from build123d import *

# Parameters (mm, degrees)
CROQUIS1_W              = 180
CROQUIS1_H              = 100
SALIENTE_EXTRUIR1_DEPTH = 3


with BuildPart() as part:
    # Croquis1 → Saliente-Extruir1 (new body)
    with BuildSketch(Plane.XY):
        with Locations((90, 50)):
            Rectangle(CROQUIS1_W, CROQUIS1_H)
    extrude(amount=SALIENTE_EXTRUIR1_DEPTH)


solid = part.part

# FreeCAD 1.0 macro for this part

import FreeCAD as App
import Part
import Sketcher

V = App.Vector
Q = App.Units.Quantity

doc = App.newDocument("Part")
body = doc.addObject("PartDesign::Body", "Body")

sketch1 = doc.addObject("Sketcher::SketchObject", "Sketch")
body.addObject(sketch1)
sketch1.AttachmentSupport = (doc.XY_Plane, [""])
sketch1.MapMode = "FlatFace"
sketch1.addGeometry([
    Part.LineSegment(V(0, 100, 0), V(0, 0, 0)),
    Part.LineSegment(V(0, 0, 0), V(180, 0, 0)),
    Part.LineSegment(V(180, 0, 0), V(180, 100, 0)),
    Part.LineSegment(V(180, 100, 0), V(0, 100, 0)),
], False)
sketch1.addConstraint([
    Sketcher.Constraint("Coincident", 0, 2, 1, 1),
    Sketcher.Constraint("Coincident", 1, 2, 2, 1),
    Sketcher.Constraint("Coincident", 2, 2, 3, 1),
    Sketcher.Constraint("Coincident", 3, 2, 0, 1),
    Sketcher.Constraint("Vertical", 0),
    Sketcher.Constraint("Horizontal", 1),
    Sketcher.Constraint("Vertical", 2),
    Sketcher.Constraint("Horizontal", 3),
    Sketcher.Constraint("Coincident", 0, 2, -1, 1),
    Sketcher.Constraint("DistanceX", 1, 1, 1, 2, Q("180 mm")),
    Sketcher.Constraint("DistanceY", 0, 2, 0, 1, Q("100 mm")),
])
pad1 = doc.addObject("PartDesign::Pad", "Pad")
body.addObject(pad1)
pad1.Profile = sketch1
pad1.Length = 3

doc.recompute()
